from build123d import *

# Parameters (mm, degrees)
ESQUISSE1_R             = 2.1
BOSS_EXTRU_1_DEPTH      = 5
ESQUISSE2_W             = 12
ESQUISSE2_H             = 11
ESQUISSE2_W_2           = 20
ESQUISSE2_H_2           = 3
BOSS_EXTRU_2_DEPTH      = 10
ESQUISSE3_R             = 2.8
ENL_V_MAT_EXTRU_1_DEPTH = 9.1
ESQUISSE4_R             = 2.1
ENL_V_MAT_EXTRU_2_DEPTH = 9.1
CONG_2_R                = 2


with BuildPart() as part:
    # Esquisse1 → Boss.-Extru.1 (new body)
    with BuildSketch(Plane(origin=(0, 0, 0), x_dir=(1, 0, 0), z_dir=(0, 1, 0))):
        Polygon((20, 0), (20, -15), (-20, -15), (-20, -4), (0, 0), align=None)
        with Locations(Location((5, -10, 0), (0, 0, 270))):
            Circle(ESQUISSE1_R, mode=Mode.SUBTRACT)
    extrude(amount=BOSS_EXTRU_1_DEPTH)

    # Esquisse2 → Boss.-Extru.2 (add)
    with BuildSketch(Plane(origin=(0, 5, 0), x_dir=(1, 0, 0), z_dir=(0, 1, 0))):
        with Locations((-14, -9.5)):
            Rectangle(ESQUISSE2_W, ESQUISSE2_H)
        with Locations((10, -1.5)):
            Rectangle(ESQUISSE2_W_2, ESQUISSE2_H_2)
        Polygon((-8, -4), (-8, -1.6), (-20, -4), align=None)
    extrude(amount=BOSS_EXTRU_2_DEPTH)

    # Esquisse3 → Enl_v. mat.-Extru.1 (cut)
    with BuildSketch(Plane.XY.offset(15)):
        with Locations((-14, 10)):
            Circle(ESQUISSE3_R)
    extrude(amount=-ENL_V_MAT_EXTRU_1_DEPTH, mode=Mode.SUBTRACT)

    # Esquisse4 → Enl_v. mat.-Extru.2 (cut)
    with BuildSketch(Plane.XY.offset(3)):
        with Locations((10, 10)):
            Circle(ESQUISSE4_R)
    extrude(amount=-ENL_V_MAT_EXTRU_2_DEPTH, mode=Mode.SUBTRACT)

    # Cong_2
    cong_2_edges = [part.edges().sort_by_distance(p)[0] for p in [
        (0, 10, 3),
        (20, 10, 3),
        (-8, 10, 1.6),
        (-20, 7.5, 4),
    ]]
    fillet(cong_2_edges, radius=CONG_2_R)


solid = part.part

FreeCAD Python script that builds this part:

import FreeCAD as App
import Part
import Sketcher
Q = App.Units.Quantity


def edges_at(feature, points):
    """Names of the edges that pass closest to the given points."""
    edges = feature.Shape.Edges
    near = lambda p: min(range(len(edges)), key=lambda i: edges[i].distToShape(Part.Vertex(*p))[0])
    return sorted({f"Edge{near(p) + 1}" for p in points})


def add_polygon(sketch, points):
    """Adds a closed chain of lines whose ends are joined by coincident constraints."""
    first, n = sketch.GeometryCount, len(points)
    for a, b in zip(points, points[1:] + points[:1]):
        sketch.addGeometry(Part.LineSegment(App.Vector(*a, 0), App.Vector(*b, 0)), False)
    for i in range(n):
        sketch.addConstraint(Sketcher.Constraint("Coincident", first + i, 2, first + (i + 1) % n, 1))

doc = App.newDocument("Part")
body = doc.addObject("PartDesign::Body", "Body")

sketch1 = body.newObject("Sketcher::SketchObject", "Sketch")
sketch1.AttachmentSupport = (doc.getObject("XZ_Plane"), [""])
sketch1.MapMode = "FlatFace"
add_polygon(sketch1, [(20, 15), (20, 0), (0, 0), (-20, 4), (-20, 15)])
sketch1.addGeometry(Part.Circle(App.Vector(5, 10, 0), App.Vector(0, 0, 1), 2.1), False)
sketch1.addConstraint([
    Sketcher.Constraint("Vertical", 0),
    Sketcher.Constraint("Horizontal", 1),
    Sketcher.Constraint("Vertical", 3),
    Sketcher.Constraint("Horizontal", 4),
    Sketcher.Constraint("Coincident", 1, 2, -1, 1),
    Sketcher.Constraint("Diameter", 5, Q("4.2 mm")),
    Sketcher.Constraint("DistanceX", 1, 2, 1, 1, Q("20 mm")),
    Sketcher.Constraint("DistanceX", 4, 1, 4, 2, Q("40 mm")),
    Sketcher.Constraint("DistanceY", 0, 2, 0, 1, Q("15 mm")),
    Sketcher.Constraint("DistanceY", 3, 1, 3, 2, Q("11 mm")),
    Sketcher.Constraint("DistanceX", -1, 1, 5, 3, Q("5 mm")),
    Sketcher.Constraint("DistanceY", -1, 1, 5, 3, Q("10 mm")),
])
pad1 = body.newObject("PartDesign::Pad", "Pad")
pad1.Profile = sketch1
pad1.Length = 5
pad1.Reversed = True

sketch2 = body.newObject("Sketcher::SketchObject", "Sketch001")
sketch2.AttachmentSupport = (doc.getObject("XZ_Plane"), [""])
sketch2.MapMode = "FlatFace"
sketch2.AttachmentOffset = App.Placement(App.Vector(0, 0, -5), App.Rotation())
add_polygon(sketch2, [(-20, 4), (-20, 15), (-8, 15), (-8, 1.6)])
add_polygon(sketch2, [(0, 0), (0, 3), (20, 3), (20, 0)])
sketch2.addConstraint([
    Sketcher.Constraint("Vertical", 0),
    Sketcher.Constraint("Horizontal", 1),
    Sketcher.Constraint("Vertical", 2),
    Sketcher.Constraint("Vertical", 4),
    Sketcher.Constraint("Horizontal", 5),
    Sketcher.Constraint("Vertical", 6),
    Sketcher.Constraint("Horizontal", 7),
    Sketcher.Constraint("Coincident", 7, 2, -1, 1),
    Sketcher.Constraint("DistanceX", 1, 1, 1, 2, Q("12 mm")),
    Sketcher.Constraint("DistanceX", 5, 1, 5, 2, Q("20 mm")),
    Sketcher.Constraint("DistanceY", 0, 1, 0, 2, Q("11 mm")),
    Sketcher.Constraint("DistanceY", 4, 1, 4, 2, Q("3 mm")),
    Sketcher.Constraint("DistanceY", 2, 2, 2, 1, Q("13.4 mm")),
    Sketcher.Constraint("DistanceX", 0, 2, -1, 1, Q("20 mm")),
    Sketcher.Constraint("DistanceY", -1, 1, 0, 2, Q("15 mm")),
])
pad2 = body.newObject("PartDesign::Pad", "Pad001")
pad2.Profile = sketch2
pad2.Length = 10
pad2.Reversed = True

sketch3 = body.newObject("Sketcher::SketchObject", "Sketch002")
sketch3.AttachmentSupport = (doc.getObject("XY_Plane"), [""])
sketch3.MapMode = "FlatFace"
sketch3.AttachmentOffset = App.Placement(App.Vector(0, 0, 15), App.Rotation())
sketch3.addGeometry(Part.Circle(App.Vector(-14, 10, 0), App.Vector(0, 0, 1), 2.8), False)
sketch3.addConstraint([
    Sketcher.Constraint("Diameter", 0, Q("5.6 mm")),
    Sketcher.Constraint("DistanceX", 0, 3, -1, 1, Q("14 mm")),
    Sketcher.Constraint("DistanceY", -1, 1, 0, 3, Q("10 mm")),
])
pocket1 = body.newObject("PartDesign::Pocket", "Pocket")
pocket1.Profile = sketch3
pocket1.Length = 9.1

sketch4 = body.newObject("Sketcher::SketchObject", "Sketch003")
sketch4.AttachmentSupport = (doc.getObject("XY_Plane"), [""])
sketch4.MapMode = "FlatFace"
sketch4.AttachmentOffset = App.Placement(App.Vector(0, 0, 3), App.Rotation())
sketch4.addGeometry(Part.Circle(App.Vector(10, 10, 0), App.Vector(0, 0, 1), 2.1), False)
sketch4.addConstraint([
    Sketcher.Constraint("Diameter", 0, Q("4.2 mm")),
    Sketcher.Constraint("DistanceX", -1, 1, 0, 3, Q("10 mm")),
    Sketcher.Constraint("DistanceY", -1, 1, 0, 3, Q("10 mm")),
])
pocket2 = body.newObject("PartDesign::Pocket", "Pocket001")
pocket2.Profile = sketch4
pocket2.Length = 9.1
doc.recompute()

fillet = body.newObject("PartDesign::Fillet", "Fillet")
fillet.Base = (pocket2, edges_at(pocket2, [
    (0, 10, 3),
    (20, 10, 3),
    (-8, 10, 1.6),
    (-20, 7.5, 4),
]))
fillet.Radius = 2

doc.recompute()
